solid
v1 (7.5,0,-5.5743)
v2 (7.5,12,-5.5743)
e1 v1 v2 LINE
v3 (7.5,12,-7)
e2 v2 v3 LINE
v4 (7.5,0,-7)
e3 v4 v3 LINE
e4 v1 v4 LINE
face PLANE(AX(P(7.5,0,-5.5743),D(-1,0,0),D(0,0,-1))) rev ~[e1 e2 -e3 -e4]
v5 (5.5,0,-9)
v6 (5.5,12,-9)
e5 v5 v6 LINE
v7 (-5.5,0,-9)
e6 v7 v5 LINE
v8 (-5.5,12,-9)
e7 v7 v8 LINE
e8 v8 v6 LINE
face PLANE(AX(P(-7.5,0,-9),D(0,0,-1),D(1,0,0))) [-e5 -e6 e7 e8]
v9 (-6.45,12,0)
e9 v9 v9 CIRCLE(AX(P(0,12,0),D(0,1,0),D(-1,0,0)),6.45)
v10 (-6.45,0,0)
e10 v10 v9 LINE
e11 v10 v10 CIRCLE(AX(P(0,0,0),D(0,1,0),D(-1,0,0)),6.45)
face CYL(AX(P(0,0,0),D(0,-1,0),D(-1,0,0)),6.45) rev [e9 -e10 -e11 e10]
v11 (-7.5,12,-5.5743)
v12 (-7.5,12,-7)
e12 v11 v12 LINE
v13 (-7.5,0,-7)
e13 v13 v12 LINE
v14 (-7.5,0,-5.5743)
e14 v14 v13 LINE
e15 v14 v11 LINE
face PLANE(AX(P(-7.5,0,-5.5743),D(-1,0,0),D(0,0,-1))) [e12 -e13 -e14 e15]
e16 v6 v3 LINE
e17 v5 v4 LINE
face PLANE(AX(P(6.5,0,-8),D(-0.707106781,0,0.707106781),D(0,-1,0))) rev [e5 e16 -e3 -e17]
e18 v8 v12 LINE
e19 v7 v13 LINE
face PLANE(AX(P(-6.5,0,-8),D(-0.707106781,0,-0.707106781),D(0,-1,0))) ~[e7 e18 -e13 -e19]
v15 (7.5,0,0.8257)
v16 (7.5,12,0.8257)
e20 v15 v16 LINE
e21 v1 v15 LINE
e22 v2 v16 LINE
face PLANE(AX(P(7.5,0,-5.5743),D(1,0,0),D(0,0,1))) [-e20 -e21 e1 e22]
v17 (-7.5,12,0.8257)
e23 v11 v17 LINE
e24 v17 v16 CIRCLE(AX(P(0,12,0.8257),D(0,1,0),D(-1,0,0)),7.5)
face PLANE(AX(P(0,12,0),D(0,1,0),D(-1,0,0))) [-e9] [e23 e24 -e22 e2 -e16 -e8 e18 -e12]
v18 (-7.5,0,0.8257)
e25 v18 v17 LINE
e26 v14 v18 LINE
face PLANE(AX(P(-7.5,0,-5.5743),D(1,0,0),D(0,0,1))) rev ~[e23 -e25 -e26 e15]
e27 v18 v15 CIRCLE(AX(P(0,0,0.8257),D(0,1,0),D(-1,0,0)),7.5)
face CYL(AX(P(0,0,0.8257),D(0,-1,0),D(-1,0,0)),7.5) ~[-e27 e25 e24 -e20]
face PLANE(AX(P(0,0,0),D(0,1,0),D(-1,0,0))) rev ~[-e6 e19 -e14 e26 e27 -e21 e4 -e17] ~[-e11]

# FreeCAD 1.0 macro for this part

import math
import FreeCAD as App
import Part
import Sketcher

V = App.Vector


def edges_at(feature, points):
    """Names of the edges that pass closest to the given points."""
    edges = feature.Shape.Edges
    near = lambda p: min(range(len(edges)), key=lambda i: edges[i].distToShape(Part.Vertex(*p))[0])
    return sorted({f"Edge{near(p) + 1}" for p in points})

doc = App.newDocument("Part")
params = doc.addObject("Spreadsheet::Sheet", "Params")
for row, (alias, value) in enumerate([
    ("sketch1_diameter", "12.9 mm"),
    ("sketch1_radius", "7.5 mm"),
    ("pad1_length", "12 mm"),
    ("chamfer_size", "2 mm"),
    ("chamfer2_size", "2 mm"),
], start=1):
    params.set(f"A{row}", alias)
    params.set(f"B{row}", "=" + value)
    params.setAlias(f"B{row}", alias)

body = doc.addObject("PartDesign::Body", "Body")

sketch1 = body.newObject("Sketcher::SketchObject", "Sketch")
sketch1.AttachmentSupport = (doc.getObject("XZ_Plane"), [""])
sketch1.MapMode = "FlatFace"
sketch1.addGeometry(Part.LineSegment(V(-7.5, -9, 0), V(-7.5, 0.8257, 0)), False)
sketch1.addGeometry(Part.ArcOfCircle(Part.Circle(V(0, 0.8257, 0), V(0, 0, 1), 7.5), math.radians(0), math.radians(180)), False)
sketch1.addGeometry(Part.LineSegment(V(7.5, 0.8257, 0), V(7.5, -9, 0)), False)
sketch1.addGeometry(Part.LineSegment(V(7.5, -9, 0), V(-7.5, -9, 0)), False)
sketch1.addGeometry(Part.Circle(V(0, 0, 0), V(0, 0, 1), 6.45), False)
sketch1.addConstraint(Sketcher.Constraint("Tangent", 0, 2, 1, 2))
sketch1.addConstraint(Sketcher.Constraint("Tangent", 1, 1, 2, 1))
sketch1.addConstraint(Sketcher.Constraint("Coincident", 2, 2, 3, 1))
sketch1.addConstraint(Sketcher.Constraint("Coincident", 3, 2, 0, 1))
sketch1.addConstraint(Sketcher.Constraint("Vertical", 0))
sketch1.addConstraint(Sketcher.Constraint("Vertical", 2))
sketch1.addConstraint(Sketcher.Constraint("Horizontal", 3))
sketch1.addConstraint(Sketcher.Constraint("Coincident", 4, 3, -1, 1))
sketch1.addConstraint(Sketcher.Constraint("PointOnObject", 1, 3, -2))
sketch1.addConstraint(Sketcher.Constraint("Diameter", 4, 12.9))
sketch1.addConstraint(Sketcher.Constraint("Radius", 1, 7.5))
sketch1.addConstraint(Sketcher.Constraint("DistanceY", 2, 2, -1, 1, 9.0))
sketch1.addConstraint(Sketcher.Constraint("DistanceY", 0, 1, 0, 2, 9.8257))
sketch1.setExpression("Constraints[9]", "Params.sketch1_diameter")
sketch1.setExpression("Constraints[10]", "Params.sketch1_radius")
pad1 = body.newObject("PartDesign::Pad", "Pad")
pad1.Profile = sketch1
pad1.setExpression("Length", "Params.pad1_length")
pad1.Reversed = True
doc.recompute()

chamfer = body.newObject("PartDesign::Chamfer", "Chamfer")
chamfer.Base = (pad1, edges_at(pad1, [(7.5, 6, -9)]))
chamfer.setExpression("Size", "Params.chamfer_size")
doc.recompute()

chamfer2 = body.newObject("PartDesign::Chamfer", "Chamfer001")
chamfer2.Base = (chamfer, edges_at(chamfer, [(-7.5, 6, -9)]))
chamfer2.setExpression("Size", "Params.chamfer2_size")

doc.recompute()
